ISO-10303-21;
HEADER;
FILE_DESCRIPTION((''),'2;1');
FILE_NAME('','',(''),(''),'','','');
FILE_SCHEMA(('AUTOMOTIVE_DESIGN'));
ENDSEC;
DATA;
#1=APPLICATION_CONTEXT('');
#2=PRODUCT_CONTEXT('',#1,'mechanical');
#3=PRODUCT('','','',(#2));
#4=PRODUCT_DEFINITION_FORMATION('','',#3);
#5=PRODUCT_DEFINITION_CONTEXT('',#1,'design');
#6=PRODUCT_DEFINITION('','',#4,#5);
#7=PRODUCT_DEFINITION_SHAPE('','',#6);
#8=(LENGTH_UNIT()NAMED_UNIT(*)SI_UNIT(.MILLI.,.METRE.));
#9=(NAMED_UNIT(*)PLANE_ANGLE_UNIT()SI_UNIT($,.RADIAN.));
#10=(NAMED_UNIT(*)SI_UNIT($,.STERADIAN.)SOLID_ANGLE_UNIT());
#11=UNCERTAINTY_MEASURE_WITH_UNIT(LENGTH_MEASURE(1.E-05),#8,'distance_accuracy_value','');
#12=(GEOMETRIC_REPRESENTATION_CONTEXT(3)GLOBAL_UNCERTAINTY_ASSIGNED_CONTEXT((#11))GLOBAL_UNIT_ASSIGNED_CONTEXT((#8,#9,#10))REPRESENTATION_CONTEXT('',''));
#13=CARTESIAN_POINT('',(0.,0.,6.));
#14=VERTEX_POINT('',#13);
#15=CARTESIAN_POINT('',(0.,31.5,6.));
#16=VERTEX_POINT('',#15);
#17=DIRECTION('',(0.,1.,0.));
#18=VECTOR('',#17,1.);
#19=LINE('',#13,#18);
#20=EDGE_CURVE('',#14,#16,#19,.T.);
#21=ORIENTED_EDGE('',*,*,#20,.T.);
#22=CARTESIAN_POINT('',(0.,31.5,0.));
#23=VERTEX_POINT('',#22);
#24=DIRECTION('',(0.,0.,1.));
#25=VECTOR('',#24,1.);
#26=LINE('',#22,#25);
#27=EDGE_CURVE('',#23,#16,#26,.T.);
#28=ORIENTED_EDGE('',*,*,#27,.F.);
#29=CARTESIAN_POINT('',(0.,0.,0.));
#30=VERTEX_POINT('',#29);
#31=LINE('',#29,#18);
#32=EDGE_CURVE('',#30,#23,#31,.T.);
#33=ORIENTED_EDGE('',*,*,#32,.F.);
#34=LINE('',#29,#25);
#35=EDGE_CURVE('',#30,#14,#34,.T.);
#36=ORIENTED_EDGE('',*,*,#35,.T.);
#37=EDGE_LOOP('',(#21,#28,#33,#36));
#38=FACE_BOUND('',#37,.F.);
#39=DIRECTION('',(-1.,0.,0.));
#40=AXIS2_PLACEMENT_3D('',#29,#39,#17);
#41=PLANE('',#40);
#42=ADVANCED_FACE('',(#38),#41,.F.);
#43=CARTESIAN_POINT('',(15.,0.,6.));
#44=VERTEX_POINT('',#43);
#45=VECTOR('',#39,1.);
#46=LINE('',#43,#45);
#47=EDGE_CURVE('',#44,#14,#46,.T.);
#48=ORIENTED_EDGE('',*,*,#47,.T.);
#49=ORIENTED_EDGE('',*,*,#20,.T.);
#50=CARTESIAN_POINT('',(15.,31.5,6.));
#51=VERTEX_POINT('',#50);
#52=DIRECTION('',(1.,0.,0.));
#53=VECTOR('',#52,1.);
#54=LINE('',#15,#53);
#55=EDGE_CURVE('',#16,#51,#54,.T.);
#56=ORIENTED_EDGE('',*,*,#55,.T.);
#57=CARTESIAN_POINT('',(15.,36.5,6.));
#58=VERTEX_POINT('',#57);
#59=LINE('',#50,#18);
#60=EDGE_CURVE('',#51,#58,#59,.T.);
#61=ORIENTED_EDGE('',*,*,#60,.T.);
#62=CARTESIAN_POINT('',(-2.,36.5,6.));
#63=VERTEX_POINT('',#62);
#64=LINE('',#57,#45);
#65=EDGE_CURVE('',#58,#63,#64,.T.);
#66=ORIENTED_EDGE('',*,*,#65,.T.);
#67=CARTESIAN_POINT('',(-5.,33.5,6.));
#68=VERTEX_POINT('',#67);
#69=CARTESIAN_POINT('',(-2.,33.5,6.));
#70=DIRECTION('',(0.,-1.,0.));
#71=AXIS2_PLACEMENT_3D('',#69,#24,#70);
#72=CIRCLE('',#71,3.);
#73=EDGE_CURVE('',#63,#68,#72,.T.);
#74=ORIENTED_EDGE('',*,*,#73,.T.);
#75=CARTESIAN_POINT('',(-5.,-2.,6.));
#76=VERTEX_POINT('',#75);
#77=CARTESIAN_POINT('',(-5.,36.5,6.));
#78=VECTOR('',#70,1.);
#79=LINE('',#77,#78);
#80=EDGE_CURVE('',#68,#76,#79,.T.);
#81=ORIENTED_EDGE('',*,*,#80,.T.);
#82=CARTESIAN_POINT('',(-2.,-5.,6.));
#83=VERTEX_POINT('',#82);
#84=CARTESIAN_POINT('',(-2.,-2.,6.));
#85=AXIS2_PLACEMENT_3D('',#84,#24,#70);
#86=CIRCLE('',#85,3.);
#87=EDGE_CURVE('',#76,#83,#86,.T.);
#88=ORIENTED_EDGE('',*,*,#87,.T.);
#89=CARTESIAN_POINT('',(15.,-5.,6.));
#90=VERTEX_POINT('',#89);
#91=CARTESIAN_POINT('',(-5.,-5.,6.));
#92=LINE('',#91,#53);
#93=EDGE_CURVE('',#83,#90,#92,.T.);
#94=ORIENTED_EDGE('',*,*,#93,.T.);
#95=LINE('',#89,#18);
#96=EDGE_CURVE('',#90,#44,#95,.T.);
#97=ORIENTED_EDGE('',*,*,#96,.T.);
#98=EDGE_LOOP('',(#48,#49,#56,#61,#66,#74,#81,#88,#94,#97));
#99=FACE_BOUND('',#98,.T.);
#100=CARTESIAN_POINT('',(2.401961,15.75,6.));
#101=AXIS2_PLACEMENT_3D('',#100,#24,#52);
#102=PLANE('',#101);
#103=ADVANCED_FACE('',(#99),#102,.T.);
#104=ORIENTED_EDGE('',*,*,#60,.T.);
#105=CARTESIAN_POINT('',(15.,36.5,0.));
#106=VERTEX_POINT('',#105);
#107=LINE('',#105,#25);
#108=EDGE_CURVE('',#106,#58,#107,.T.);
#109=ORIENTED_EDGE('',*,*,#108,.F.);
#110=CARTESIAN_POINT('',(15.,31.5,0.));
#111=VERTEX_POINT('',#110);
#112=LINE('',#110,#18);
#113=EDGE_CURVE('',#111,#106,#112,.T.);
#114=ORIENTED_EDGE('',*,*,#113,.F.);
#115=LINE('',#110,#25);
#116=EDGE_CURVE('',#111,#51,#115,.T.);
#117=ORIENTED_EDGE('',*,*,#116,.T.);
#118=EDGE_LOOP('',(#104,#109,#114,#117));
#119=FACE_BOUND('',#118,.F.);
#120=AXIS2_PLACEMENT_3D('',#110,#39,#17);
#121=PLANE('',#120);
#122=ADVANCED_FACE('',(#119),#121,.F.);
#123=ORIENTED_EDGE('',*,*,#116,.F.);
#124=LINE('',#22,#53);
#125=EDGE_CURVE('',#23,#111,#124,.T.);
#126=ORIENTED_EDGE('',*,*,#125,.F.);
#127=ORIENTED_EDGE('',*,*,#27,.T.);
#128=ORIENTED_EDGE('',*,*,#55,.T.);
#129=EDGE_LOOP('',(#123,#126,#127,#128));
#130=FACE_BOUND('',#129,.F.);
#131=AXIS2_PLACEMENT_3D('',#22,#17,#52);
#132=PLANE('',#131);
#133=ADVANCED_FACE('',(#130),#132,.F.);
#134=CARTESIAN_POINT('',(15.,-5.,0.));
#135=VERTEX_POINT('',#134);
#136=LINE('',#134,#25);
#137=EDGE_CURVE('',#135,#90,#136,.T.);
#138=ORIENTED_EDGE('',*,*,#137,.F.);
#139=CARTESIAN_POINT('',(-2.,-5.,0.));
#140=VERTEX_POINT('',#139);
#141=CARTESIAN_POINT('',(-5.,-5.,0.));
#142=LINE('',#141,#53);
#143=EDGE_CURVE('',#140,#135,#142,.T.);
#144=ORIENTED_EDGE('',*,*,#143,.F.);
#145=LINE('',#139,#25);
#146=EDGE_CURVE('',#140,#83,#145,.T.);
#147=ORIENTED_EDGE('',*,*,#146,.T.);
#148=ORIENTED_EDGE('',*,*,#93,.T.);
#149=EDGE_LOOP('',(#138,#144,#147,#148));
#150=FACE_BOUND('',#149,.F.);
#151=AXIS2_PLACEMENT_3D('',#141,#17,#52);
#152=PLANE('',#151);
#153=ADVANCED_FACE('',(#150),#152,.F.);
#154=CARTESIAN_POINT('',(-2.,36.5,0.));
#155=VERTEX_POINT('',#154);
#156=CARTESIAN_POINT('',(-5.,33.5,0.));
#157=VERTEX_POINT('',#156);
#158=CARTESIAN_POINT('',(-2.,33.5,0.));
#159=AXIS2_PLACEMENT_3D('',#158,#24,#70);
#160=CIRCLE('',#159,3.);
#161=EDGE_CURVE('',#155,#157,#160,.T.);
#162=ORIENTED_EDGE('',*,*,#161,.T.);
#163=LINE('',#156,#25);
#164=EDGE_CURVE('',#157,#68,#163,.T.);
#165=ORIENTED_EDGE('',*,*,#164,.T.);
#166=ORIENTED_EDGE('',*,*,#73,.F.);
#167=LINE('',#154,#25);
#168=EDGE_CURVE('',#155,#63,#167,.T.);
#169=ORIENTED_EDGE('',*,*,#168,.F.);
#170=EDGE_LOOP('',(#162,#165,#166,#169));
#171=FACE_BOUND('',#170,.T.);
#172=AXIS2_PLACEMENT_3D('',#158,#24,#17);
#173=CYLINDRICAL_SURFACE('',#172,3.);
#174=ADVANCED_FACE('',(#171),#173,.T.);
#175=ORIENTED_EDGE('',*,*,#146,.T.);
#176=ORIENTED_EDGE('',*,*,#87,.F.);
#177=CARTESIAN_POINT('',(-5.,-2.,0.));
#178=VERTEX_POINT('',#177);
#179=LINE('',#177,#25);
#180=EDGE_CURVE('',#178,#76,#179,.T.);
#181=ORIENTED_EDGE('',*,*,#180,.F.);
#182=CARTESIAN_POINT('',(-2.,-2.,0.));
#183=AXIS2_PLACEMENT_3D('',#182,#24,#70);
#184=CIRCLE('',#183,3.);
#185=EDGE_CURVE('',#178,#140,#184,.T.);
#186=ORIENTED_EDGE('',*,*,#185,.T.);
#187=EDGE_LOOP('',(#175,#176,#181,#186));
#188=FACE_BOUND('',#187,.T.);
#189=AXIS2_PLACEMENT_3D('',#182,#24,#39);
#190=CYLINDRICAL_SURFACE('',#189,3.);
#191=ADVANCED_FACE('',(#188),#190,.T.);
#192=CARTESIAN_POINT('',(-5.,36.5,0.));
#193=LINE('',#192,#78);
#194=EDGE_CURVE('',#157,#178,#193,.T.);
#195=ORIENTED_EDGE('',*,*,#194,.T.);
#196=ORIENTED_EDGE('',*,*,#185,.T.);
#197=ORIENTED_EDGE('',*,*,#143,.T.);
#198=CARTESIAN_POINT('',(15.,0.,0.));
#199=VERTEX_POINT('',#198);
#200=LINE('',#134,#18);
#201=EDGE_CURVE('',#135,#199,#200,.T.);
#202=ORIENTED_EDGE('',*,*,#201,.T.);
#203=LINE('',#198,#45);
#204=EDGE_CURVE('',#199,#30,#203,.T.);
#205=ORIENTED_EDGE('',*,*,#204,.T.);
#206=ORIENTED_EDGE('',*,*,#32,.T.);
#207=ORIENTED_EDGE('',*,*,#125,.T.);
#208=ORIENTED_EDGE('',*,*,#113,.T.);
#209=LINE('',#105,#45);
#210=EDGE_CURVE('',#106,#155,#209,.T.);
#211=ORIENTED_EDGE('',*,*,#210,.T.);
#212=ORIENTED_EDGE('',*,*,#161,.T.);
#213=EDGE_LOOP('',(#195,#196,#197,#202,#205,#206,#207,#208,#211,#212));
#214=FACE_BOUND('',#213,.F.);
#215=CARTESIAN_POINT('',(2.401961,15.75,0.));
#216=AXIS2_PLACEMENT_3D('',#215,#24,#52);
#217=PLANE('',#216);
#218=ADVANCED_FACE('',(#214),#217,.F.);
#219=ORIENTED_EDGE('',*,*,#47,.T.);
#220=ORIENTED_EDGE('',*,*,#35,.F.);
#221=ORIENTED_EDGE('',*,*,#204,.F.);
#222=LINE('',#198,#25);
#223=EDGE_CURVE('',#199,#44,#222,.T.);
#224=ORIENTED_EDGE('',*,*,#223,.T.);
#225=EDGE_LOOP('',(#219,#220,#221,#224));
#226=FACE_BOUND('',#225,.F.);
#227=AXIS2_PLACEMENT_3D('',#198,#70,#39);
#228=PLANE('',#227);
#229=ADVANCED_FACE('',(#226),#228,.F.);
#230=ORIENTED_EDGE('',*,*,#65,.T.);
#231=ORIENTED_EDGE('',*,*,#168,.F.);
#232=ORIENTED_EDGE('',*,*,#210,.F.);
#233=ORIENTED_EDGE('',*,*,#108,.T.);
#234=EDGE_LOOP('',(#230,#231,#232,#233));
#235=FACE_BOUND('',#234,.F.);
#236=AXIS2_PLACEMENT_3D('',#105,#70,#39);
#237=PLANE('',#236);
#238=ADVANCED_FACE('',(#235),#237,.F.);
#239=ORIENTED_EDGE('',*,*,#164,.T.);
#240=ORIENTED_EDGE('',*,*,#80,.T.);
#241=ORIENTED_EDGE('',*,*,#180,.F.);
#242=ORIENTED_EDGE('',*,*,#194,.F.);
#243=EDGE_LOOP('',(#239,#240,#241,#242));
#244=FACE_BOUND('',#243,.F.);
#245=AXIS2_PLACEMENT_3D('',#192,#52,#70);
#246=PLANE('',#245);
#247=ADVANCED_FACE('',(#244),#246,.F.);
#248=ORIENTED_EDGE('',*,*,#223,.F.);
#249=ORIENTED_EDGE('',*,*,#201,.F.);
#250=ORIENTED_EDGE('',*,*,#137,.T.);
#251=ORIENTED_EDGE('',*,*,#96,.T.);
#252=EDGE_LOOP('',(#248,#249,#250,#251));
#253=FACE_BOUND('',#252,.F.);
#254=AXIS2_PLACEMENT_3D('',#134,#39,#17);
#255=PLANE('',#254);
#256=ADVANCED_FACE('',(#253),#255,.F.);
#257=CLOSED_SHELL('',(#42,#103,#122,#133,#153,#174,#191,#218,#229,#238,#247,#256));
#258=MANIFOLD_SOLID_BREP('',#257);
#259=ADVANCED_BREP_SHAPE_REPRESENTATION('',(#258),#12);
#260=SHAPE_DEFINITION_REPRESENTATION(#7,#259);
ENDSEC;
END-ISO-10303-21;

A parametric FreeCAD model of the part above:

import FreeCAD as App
import Part
import Sketcher
Q = App.Units.Quantity


def edges_at(feature, points):
    """Names of the edges that pass closest to the given points."""
    edges = feature.Shape.Edges
    near = lambda p: min(range(len(edges)), key=lambda i: edges[i].distToShape(Part.Vertex(*p))[0])
    return sorted({f"Edge{near(p) + 1}" for p in points})

doc = App.newDocument("Part")
body = doc.addObject("PartDesign::Body", "Body")

# Sketch on XY plane
sketch1 = doc.addObject("Sketcher::SketchObject", "Sketch")
body.addObject(sketch1)
sketch1.AttachmentSupport = (doc.XY_Plane, [""])
sketch1.MapMode = "FlatFace"
sketch1.addGeometry(Part.LineSegment(App.Vector(15, 0, 0), App.Vector(0, 0, 0)), False)
sketch1.addGeometry(Part.LineSegment(App.Vector(0, 0, 0), App.Vector(0, 32, 0)), False)
sketch1.addGeometry(Part.LineSegment(App.Vector(0, 32, 0), App.Vector(15, 32, 0)), False)
sketch1.addGeometry(Part.LineSegment(App.Vector(15, 32, 0), App.Vector(15, 36, 0)), False)
sketch1.addGeometry(Part.LineSegment(App.Vector(15, 36, 0), App.Vector(-5, 36, 0)), False)
sketch1.addGeometry(Part.LineSegment(App.Vector(-5, 36, 0), App.Vector(-5, -5, 0)), False)
sketch1.addGeometry(Part.LineSegment(App.Vector(-5, -5, 0), App.Vector(15, -5, 0)), False)
sketch1.addGeometry(Part.LineSegment(App.Vector(15, -5, 0), App.Vector(15, 0, 0)), False)
sketch1.addConstraint(Sketcher.Constraint("Coincident", 0, 2, 1, 1))
sketch1.addConstraint(Sketcher.Constraint("Coincident", 1, 2, 2, 1))
sketch1.addConstraint(Sketcher.Constraint("Coincident", 2, 2, 3, 1))
sketch1.addConstraint(Sketcher.Constraint("Coincident", 3, 2, 4, 1))
sketch1.addConstraint(Sketcher.Constraint("Coincident", 4, 2, 5, 1))
sketch1.addConstraint(Sketcher.Constraint("Coincident", 5, 2, 6, 1))
sketch1.addConstraint(Sketcher.Constraint("Coincident", 6, 2, 7, 1))
sketch1.addConstraint(Sketcher.Constraint("Coincident", 7, 2, 0, 1))
sketch1.addConstraint(Sketcher.Constraint("Horizontal", 0))
sketch1.addConstraint(Sketcher.Constraint("Vertical", 1))
sketch1.addConstraint(Sketcher.Constraint("Horizontal", 2))
sketch1.addConstraint(Sketcher.Constraint("Vertical", 3))
sketch1.addConstraint(Sketcher.Constraint("Horizontal", 4))
sketch1.addConstraint(Sketcher.Constraint("Vertical", 5))
sketch1.addConstraint(Sketcher.Constraint("Horizontal", 6))
sketch1.addConstraint(Sketcher.Constraint("Vertical", 7))
sketch1.addConstraint(Sketcher.Constraint("Coincident", 0, 2, -1, 1))
sketch1.addConstraint(Sketcher.Constraint("Vertical", 3, 2, 6, 2))
sketch1.addConstraint(Sketcher.Constraint("Equal", 3, 7))
sketch1.addConstraint(Sketcher.Constraint("DistanceX", 0, 2, 0, 1, Q("15 mm")))
sketch1.addConstraint(Sketcher.Constraint("DistanceX", 4, 2, 4, 1, Q("20 mm")))
sketch1.addConstraint(Sketcher.Constraint("DistanceY", 3, 1, 3, 2, Q("5 mm")))
sketch1.addConstraint(Sketcher.Constraint("DistanceY", 1, 1, 1, 2, Q("31.5 mm")))
pad1 = doc.addObject("PartDesign::Pad", "Pad")
body.addObject(pad1)
pad1.Profile = sketch1
pad1.Length = 6
doc.recompute()

fillet = doc.addObject("PartDesign::Fillet", "Fillet")
body.addObject(fillet)
fillet.Base = (pad1, edges_at(pad1, [(-5, 36.5, 3), (-5, -5, 3)]))
fillet.Radius = 3

doc.recompute()
